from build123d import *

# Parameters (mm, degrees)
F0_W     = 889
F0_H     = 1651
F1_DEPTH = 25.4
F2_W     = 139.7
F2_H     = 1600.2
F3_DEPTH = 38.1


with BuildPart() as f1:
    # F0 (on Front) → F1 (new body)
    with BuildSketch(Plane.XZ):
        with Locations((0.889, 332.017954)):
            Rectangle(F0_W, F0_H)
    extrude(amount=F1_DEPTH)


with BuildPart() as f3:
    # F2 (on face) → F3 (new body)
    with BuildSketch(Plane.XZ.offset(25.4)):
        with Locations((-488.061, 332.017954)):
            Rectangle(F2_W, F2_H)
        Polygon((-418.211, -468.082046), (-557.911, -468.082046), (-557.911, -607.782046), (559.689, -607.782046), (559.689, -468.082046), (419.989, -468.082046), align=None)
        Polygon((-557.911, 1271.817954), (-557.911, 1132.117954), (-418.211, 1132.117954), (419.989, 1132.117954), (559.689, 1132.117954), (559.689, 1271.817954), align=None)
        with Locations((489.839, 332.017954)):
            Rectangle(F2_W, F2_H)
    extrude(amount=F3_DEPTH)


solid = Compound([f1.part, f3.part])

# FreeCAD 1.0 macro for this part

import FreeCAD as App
import Part
import Sketcher
from FreeCAD import Vector
Q = App.Units.Quantity


def add_polygon(sketch, points):
    """Adds a closed chain of lines whose ends are joined by coincident constraints."""
    first, n = sketch.GeometryCount, len(points)
    for a, b in zip(points, points[1:] + points[:1]):
        sketch.addGeometry(Part.LineSegment(App.Vector(*a, 0), App.Vector(*b, 0)), False)
    for i in range(n):
        sketch.addConstraint(Sketcher.Constraint("Coincident", first + i, 2, first + (i + 1) % n, 1))

doc = App.newDocument("Part")
body = doc.addObject("PartDesign::Body", "Body")

# Sketch on XZ plane
sketch1 = doc.addObject("Sketcher::SketchObject", "Sketch")
body.addObject(sketch1)
sketch1.AttachmentSupport = (doc.XZ_Plane, [""])
sketch1.MapMode = "FlatFace"
add_polygon(sketch1, [(-444, 1158), (-444, -493), (445, -493), (445, 1158)])  # lines 0-3
sketch1.addConstraint([
    Sketcher.Constraint("Vertical", 0),
    Sketcher.Constraint("Horizontal", 1),
    Sketcher.Constraint("Vertical", 2),
    Sketcher.Constraint("Horizontal", 3),
    Sketcher.Constraint("DistanceX", 1, 1, 1, 2, Q("35 in")),
    Sketcher.Constraint("DistanceY", 0, 2, 0, 1, Q("65 in")),
    Sketcher.Constraint("DistanceX", 0, 2, -1, 1, Q("17.465 in")),
    Sketcher.Constraint("DistanceY", 0, 2, -1, 1, Q("493.482046 mm")),
])
pad1 = doc.addObject("PartDesign::Pad", "Pad")
body.addObject(pad1)
pad1.Profile = sketch1
pad1.Length = Q("1 in")
body2 = doc.addObject("PartDesign::Body", "Body001")

# Sketch on XZ plane
sketch2 = doc.addObject("Sketcher::SketchObject", "Sketch001")
body2.addObject(sketch2)
sketch2.AttachmentSupport = (doc.getObject("XZ_Plane001"), [""])
sketch2.MapMode = "FlatFace"
sketch2.AttachmentOffset = App.Placement(Vector(0, 0, 1 * 25.4), App.Rotation())
add_polygon(sketch2, [(-558, -608), (560, -608), (560, 1272), (-558, 1272)])  # lines 0-3
add_polygon(sketch2, [(420, -468), (-418, -468), (-418, 1132), (420, 1132)])  # lines 4-7
sketch2.addConstraint([
    Sketcher.Constraint("Horizontal", 0),
    Sketcher.Constraint("Vertical", 1),
    Sketcher.Constraint("Horizontal", 2),
    Sketcher.Constraint("Vertical", 3),
    Sketcher.Constraint("Horizontal", 4),
    Sketcher.Constraint("Vertical", 5),
    Sketcher.Constraint("Horizontal", 6),
    Sketcher.Constraint("Vertical", 7),
    Sketcher.Constraint("DistanceX", 0, 1, 0, 2, Q("44 in")),
    Sketcher.Constraint("DistanceX", 4, 2, 4, 1, Q("33 in")),
    Sketcher.Constraint("DistanceY", 1, 1, 1, 2, Q("74 in")),
    Sketcher.Constraint("DistanceY", 5, 1, 5, 2, Q("63 in")),
    Sketcher.Constraint("DistanceX", 3, 2, 4, 2, Q("5.5 in")),
    Sketcher.Constraint("DistanceY", 3, 2, 4, 2, Q("5.5 in")),
    Sketcher.Constraint("DistanceX", -1, 1, 0, 2, Q("22.035 in")),
    Sketcher.Constraint("DistanceY", 0, 2, -1, 1, Q("607.782046 mm")),
])
pad2 = doc.addObject("PartDesign::Pad", "Pad001")
body2.addObject(pad2)
pad2.Profile = sketch2
pad2.Length = Q("1.5 in")

doc.recompute()
